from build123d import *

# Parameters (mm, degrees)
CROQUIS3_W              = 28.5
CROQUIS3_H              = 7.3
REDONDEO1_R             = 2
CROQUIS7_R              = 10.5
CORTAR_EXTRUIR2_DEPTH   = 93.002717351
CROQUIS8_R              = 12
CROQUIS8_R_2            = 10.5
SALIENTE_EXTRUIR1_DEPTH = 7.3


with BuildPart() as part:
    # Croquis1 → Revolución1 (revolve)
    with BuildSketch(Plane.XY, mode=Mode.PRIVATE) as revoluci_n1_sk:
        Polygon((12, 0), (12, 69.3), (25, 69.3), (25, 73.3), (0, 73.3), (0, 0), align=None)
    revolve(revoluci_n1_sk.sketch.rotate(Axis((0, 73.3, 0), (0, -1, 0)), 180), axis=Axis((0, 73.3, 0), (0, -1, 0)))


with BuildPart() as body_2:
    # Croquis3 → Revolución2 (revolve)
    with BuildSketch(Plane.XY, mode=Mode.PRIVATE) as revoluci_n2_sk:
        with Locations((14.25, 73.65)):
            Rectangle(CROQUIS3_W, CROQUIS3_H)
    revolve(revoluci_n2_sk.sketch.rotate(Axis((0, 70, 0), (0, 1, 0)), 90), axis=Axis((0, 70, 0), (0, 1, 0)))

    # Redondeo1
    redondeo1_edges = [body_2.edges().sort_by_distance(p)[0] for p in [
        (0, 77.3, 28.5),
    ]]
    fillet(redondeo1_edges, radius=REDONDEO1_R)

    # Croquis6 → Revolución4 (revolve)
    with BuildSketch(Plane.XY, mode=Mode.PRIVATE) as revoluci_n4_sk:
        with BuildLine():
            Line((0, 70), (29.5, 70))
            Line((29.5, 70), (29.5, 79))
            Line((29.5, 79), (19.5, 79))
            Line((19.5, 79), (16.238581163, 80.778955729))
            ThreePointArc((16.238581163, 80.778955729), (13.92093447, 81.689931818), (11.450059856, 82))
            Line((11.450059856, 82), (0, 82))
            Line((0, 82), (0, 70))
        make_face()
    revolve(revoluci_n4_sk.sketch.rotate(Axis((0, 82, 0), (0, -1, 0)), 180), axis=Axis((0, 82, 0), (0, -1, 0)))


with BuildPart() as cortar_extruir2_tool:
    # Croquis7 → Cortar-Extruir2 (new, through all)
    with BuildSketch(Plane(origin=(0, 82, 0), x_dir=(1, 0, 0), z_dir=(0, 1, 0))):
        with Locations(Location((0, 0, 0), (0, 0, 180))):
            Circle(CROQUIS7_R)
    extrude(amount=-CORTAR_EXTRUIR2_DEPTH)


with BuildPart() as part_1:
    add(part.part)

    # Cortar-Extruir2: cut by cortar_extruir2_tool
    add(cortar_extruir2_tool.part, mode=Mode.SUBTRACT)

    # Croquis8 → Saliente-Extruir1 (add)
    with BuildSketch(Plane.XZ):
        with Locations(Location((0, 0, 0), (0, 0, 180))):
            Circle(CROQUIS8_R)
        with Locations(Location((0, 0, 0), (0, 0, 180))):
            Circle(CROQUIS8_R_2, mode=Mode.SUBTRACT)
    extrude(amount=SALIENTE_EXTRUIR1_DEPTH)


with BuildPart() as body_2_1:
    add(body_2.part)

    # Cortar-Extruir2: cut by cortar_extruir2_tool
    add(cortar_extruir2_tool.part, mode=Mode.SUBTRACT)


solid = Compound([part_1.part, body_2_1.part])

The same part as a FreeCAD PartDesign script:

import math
import FreeCAD as App
import Part
import Sketcher


def edges_at(feature, points):
    """Names of the edges that pass closest to the given points."""
    edges = feature.Shape.Edges
    near = lambda p: min(range(len(edges)), key=lambda i: edges[i].distToShape(Part.Vertex(*p))[0])
    return sorted({f"Edge{near(p) + 1}" for p in points})

doc = App.newDocument("Part")
body = doc.addObject("PartDesign::Body", "Body")

# Sketch on XY plane
sketch1 = body.newObject("Sketcher::SketchObject", "Sketch")
sketch1.AttachmentSupport = (doc.getObject("XY_Plane"), [""])
sketch1.MapMode = "FlatFace"
sketch1.addGeometry([
    Part.LineSegment(App.Vector(12, 0, 0), App.Vector(12, 69.3, 0)),  # 0
    Part.LineSegment(App.Vector(12, 69.3, 0), App.Vector(25, 69.3, 0)),  # 1
    Part.LineSegment(App.Vector(25, 69.3, 0), App.Vector(25, 73.3, 0)),  # 2
    Part.LineSegment(App.Vector(25, 73.3, 0), App.Vector(0, 73.3, 0)),  # 3
    Part.LineSegment(App.Vector(0, 73.3, 0), App.Vector(0, 0, 0)),  # 4
    Part.LineSegment(App.Vector(0, 0, 0), App.Vector(12, 0, 0)),  # 5
], False)
sketch1.addConstraint([
    Sketcher.Constraint("Coincident", 0, 2, 1, 1),
    Sketcher.Constraint("Coincident", 1, 2, 2, 1),
    Sketcher.Constraint("Coincident", 2, 2, 3, 1),
    Sketcher.Constraint("Coincident", 3, 2, 4, 1),
    Sketcher.Constraint("Coincident", 4, 2, 5, 1),
    Sketcher.Constraint("Coincident", 5, 2, 0, 1),
    Sketcher.Constraint("Vertical", 0),
    Sketcher.Constraint("Horizontal", 1),
    Sketcher.Constraint("Vertical", 2),
    Sketcher.Constraint("Horizontal", 3),
    Sketcher.Constraint("Vertical", 4),
    Sketcher.Constraint("Horizontal", 5),
    Sketcher.Constraint("Coincident", 4, 2, -1, 1),
    Sketcher.Constraint("DistanceX", 1, 1, 1, 2, 13.0),
    Sketcher.Constraint("DistanceX", 3, 2, 3, 1, 25.0),
    Sketcher.Constraint("DistanceY", 2, 1, 2, 2, 4.0),
    Sketcher.Constraint("DistanceY", 0, 1, 0, 2, 69.3),
])
revolution = body.newObject("PartDesign::Revolution", "Revolution")
revolution.Profile = sketch1
revolution.ReferenceAxis = (sketch1, ["V_Axis"])
revolution.Angle = 360
body2 = doc.addObject("PartDesign::Body", "Body001")

# Sketch on XY plane
sketch2 = body2.newObject("Sketcher::SketchObject", "Sketch001")
sketch2.AttachmentSupport = (doc.getObject("XY_Plane001"), [""])
sketch2.MapMode = "FlatFace"
sketch2.addGeometry([
    Part.LineSegment(App.Vector(0, 77, 0), App.Vector(0, 70, 0)),
    Part.LineSegment(App.Vector(0, 70, 0), App.Vector(28, 70, 0)),
    Part.LineSegment(App.Vector(28, 70, 0), App.Vector(28, 77, 0)),
    Part.LineSegment(App.Vector(28, 77, 0), App.Vector(0, 77, 0)),
], False)
sketch2.addConstraint([
    Sketcher.Constraint("Coincident", 0, 2, 1, 1),
    Sketcher.Constraint("Coincident", 1, 2, 2, 1),
    Sketcher.Constraint("Coincident", 2, 2, 3, 1),
    Sketcher.Constraint("Coincident", 3, 2, 0, 1),
    Sketcher.Constraint("Vertical", 0),
    Sketcher.Constraint("Horizontal", 1),
    Sketcher.Constraint("Vertical", 2),
    Sketcher.Constraint("Horizontal", 3),
    Sketcher.Constraint("PointOnObject", 0, 2, -2),
    Sketcher.Constraint("DistanceX", 1, 1, 1, 2, 28.5),
    Sketcher.Constraint("DistanceY", 0, 2, 0, 1, 7.3),
    Sketcher.Constraint("DistanceY", -1, 1, 0, 2, 70.0),
])
revolution2 = body2.newObject("PartDesign::Revolution", "Revolution001")
revolution2.Profile = sketch2
revolution2.ReferenceAxis = (sketch2, ["V_Axis"])
revolution2.Angle = 360
doc.recompute()

fillet = body2.newObject("PartDesign::Fillet", "Fillet")
fillet.Base = (revolution2, edges_at(revolution2, [(0, 77.3, 28.5)]))
fillet.Radius = 2

# Sketch on XY plane
sketch3 = body2.newObject("Sketcher::SketchObject", "Sketch002")
sketch3.AttachmentSupport = (doc.getObject("XY_Plane001"), [""])
sketch3.MapMode = "FlatFace"
sketch3.addGeometry([
    Part.LineSegment(App.Vector(0, 70, 0), App.Vector(29.5, 70, 0)),  # 0
    Part.LineSegment(App.Vector(29.5, 70, 0), App.Vector(29.5, 79, 0)),  # 1
    Part.LineSegment(App.Vector(29.5, 79, 0), App.Vector(19.5, 79, 0)),  # 2
    Part.LineSegment(App.Vector(19.5, 79, 0), App.Vector(16.2, 80.8, 0)),  # 3
    Part.ArcOfCircle(Part.Circle(App.Vector(11.5, 72, 0), App.Vector(0, 0, 1), 10), math.radians(61), math.radians(90)),  # 4
    Part.LineSegment(App.Vector(11.5, 82, 0), App.Vector(0, 82, 0)),  # 5
    Part.LineSegment(App.Vector(0, 82, 0), App.Vector(0, 70, 0)),  # 6
], False)
sketch3.addConstraint([
    Sketcher.Constraint("Coincident", 0, 2, 1, 1),
    Sketcher.Constraint("Coincident", 1, 2, 2, 1),
    Sketcher.Constraint("Coincident", 2, 2, 3, 1),
    Sketcher.Constraint("Tangent", 3, 2, 4, 1),
    Sketcher.Constraint("Tangent", 4, 2, 5, 1),
    Sketcher.Constraint("Coincident", 5, 2, 6, 1),
    Sketcher.Constraint("Coincident", 6, 2, 0, 1),
    Sketcher.Constraint("Horizontal", 0),
    Sketcher.Constraint("Vertical", 1),
    Sketcher.Constraint("Horizontal", 2),
    Sketcher.Constraint("Horizontal", 5),
    Sketcher.Constraint("Vertical", 6),
    Sketcher.Constraint("PointOnObject", 5, 2, -2),
    Sketcher.Constraint("Radius", 4, 10.0),
    Sketcher.Constraint("DistanceX", 2, 2, 2, 1, 10.0),
    Sketcher.Constraint("DistanceY", 1, 1, 1, 2, 9.0),
    Sketcher.Constraint("DistanceY", 6, 2, 6, 1, 12.0),
    Sketcher.Constraint("DistanceX", 0, 1, 0, 2, 29.5),
    Sketcher.Constraint("DistanceY", -1, 1, 4, 3, 72.0),
    Sketcher.Constraint("DistanceX", 5, 2, 5, 1, 11.45006),
])
revolution3 = body2.newObject("PartDesign::Revolution", "Revolution002")
revolution3.Profile = sketch3
revolution3.ReferenceAxis = (sketch3, ["V_Axis"])
revolution3.Angle = 360
body3 = doc.addObject("PartDesign::Body", "Body002")

# Sketch on XZ plane
sketch4 = body3.newObject("Sketcher::SketchObject", "Sketch003")
sketch4.AttachmentSupport = (doc.getObject("XZ_Plane002"), [""])
sketch4.MapMode = "FlatFace"
sketch4.AttachmentOffset = App.Placement(App.Vector(0, 0, -82), App.Rotation())
sketch4.addGeometry(Part.Circle(App.Vector(0, 0, 0), App.Vector(0, 0, 1), 10), False)
sketch4.addConstraint([
    Sketcher.Constraint("Coincident", 0, 3, -1, 1),
    Sketcher.Constraint("Diameter", 0, 21.0),
])
pad1 = body3.newObject("PartDesign::Pad", "Pad")
pad1.Profile = sketch4
pad1.Length = 93.002717
doc.recompute()

body4 = doc.addObject("PartDesign::Body", "Body003")
body4.BaseFeature = body3
boolean = body.newObject("PartDesign::Boolean", "Boolean")
boolean.Type = "Cut"
boolean.addObjects([body4])
doc.recompute()

# Sketch on XZ plane
sketch5 = body.newObject("Sketcher::SketchObject", "Sketch004")
sketch5.AttachmentSupport = (doc.getObject("XZ_Plane"), [""])
sketch5.MapMode = "FlatFace"
sketch5.addGeometry([
    Part.Circle(App.Vector(0, 0, 0), App.Vector(0, 0, 1), 12),
    Part.Circle(App.Vector(0, 0, 0), App.Vector(0, 0, 1), 10),
], False)
sketch5.addConstraint([
    Sketcher.Constraint("Coincident", 0, 3, -1, 1),
    Sketcher.Constraint("Coincident", 1, 3, -1, 1),
    Sketcher.Constraint("Diameter", 0, 24.0),
    Sketcher.Constraint("Diameter", 1, 21.0),
])
pad2 = body.newObject("PartDesign::Pad", "Pad001")
pad2.Profile = sketch5
pad2.Length = 7.3
doc.recompute()

boolean2 = body2.newObject("PartDesign::Boolean", "Boolean001")
boolean2.Type = "Cut"
boolean2.addObjects([body3])

doc.recompute()
